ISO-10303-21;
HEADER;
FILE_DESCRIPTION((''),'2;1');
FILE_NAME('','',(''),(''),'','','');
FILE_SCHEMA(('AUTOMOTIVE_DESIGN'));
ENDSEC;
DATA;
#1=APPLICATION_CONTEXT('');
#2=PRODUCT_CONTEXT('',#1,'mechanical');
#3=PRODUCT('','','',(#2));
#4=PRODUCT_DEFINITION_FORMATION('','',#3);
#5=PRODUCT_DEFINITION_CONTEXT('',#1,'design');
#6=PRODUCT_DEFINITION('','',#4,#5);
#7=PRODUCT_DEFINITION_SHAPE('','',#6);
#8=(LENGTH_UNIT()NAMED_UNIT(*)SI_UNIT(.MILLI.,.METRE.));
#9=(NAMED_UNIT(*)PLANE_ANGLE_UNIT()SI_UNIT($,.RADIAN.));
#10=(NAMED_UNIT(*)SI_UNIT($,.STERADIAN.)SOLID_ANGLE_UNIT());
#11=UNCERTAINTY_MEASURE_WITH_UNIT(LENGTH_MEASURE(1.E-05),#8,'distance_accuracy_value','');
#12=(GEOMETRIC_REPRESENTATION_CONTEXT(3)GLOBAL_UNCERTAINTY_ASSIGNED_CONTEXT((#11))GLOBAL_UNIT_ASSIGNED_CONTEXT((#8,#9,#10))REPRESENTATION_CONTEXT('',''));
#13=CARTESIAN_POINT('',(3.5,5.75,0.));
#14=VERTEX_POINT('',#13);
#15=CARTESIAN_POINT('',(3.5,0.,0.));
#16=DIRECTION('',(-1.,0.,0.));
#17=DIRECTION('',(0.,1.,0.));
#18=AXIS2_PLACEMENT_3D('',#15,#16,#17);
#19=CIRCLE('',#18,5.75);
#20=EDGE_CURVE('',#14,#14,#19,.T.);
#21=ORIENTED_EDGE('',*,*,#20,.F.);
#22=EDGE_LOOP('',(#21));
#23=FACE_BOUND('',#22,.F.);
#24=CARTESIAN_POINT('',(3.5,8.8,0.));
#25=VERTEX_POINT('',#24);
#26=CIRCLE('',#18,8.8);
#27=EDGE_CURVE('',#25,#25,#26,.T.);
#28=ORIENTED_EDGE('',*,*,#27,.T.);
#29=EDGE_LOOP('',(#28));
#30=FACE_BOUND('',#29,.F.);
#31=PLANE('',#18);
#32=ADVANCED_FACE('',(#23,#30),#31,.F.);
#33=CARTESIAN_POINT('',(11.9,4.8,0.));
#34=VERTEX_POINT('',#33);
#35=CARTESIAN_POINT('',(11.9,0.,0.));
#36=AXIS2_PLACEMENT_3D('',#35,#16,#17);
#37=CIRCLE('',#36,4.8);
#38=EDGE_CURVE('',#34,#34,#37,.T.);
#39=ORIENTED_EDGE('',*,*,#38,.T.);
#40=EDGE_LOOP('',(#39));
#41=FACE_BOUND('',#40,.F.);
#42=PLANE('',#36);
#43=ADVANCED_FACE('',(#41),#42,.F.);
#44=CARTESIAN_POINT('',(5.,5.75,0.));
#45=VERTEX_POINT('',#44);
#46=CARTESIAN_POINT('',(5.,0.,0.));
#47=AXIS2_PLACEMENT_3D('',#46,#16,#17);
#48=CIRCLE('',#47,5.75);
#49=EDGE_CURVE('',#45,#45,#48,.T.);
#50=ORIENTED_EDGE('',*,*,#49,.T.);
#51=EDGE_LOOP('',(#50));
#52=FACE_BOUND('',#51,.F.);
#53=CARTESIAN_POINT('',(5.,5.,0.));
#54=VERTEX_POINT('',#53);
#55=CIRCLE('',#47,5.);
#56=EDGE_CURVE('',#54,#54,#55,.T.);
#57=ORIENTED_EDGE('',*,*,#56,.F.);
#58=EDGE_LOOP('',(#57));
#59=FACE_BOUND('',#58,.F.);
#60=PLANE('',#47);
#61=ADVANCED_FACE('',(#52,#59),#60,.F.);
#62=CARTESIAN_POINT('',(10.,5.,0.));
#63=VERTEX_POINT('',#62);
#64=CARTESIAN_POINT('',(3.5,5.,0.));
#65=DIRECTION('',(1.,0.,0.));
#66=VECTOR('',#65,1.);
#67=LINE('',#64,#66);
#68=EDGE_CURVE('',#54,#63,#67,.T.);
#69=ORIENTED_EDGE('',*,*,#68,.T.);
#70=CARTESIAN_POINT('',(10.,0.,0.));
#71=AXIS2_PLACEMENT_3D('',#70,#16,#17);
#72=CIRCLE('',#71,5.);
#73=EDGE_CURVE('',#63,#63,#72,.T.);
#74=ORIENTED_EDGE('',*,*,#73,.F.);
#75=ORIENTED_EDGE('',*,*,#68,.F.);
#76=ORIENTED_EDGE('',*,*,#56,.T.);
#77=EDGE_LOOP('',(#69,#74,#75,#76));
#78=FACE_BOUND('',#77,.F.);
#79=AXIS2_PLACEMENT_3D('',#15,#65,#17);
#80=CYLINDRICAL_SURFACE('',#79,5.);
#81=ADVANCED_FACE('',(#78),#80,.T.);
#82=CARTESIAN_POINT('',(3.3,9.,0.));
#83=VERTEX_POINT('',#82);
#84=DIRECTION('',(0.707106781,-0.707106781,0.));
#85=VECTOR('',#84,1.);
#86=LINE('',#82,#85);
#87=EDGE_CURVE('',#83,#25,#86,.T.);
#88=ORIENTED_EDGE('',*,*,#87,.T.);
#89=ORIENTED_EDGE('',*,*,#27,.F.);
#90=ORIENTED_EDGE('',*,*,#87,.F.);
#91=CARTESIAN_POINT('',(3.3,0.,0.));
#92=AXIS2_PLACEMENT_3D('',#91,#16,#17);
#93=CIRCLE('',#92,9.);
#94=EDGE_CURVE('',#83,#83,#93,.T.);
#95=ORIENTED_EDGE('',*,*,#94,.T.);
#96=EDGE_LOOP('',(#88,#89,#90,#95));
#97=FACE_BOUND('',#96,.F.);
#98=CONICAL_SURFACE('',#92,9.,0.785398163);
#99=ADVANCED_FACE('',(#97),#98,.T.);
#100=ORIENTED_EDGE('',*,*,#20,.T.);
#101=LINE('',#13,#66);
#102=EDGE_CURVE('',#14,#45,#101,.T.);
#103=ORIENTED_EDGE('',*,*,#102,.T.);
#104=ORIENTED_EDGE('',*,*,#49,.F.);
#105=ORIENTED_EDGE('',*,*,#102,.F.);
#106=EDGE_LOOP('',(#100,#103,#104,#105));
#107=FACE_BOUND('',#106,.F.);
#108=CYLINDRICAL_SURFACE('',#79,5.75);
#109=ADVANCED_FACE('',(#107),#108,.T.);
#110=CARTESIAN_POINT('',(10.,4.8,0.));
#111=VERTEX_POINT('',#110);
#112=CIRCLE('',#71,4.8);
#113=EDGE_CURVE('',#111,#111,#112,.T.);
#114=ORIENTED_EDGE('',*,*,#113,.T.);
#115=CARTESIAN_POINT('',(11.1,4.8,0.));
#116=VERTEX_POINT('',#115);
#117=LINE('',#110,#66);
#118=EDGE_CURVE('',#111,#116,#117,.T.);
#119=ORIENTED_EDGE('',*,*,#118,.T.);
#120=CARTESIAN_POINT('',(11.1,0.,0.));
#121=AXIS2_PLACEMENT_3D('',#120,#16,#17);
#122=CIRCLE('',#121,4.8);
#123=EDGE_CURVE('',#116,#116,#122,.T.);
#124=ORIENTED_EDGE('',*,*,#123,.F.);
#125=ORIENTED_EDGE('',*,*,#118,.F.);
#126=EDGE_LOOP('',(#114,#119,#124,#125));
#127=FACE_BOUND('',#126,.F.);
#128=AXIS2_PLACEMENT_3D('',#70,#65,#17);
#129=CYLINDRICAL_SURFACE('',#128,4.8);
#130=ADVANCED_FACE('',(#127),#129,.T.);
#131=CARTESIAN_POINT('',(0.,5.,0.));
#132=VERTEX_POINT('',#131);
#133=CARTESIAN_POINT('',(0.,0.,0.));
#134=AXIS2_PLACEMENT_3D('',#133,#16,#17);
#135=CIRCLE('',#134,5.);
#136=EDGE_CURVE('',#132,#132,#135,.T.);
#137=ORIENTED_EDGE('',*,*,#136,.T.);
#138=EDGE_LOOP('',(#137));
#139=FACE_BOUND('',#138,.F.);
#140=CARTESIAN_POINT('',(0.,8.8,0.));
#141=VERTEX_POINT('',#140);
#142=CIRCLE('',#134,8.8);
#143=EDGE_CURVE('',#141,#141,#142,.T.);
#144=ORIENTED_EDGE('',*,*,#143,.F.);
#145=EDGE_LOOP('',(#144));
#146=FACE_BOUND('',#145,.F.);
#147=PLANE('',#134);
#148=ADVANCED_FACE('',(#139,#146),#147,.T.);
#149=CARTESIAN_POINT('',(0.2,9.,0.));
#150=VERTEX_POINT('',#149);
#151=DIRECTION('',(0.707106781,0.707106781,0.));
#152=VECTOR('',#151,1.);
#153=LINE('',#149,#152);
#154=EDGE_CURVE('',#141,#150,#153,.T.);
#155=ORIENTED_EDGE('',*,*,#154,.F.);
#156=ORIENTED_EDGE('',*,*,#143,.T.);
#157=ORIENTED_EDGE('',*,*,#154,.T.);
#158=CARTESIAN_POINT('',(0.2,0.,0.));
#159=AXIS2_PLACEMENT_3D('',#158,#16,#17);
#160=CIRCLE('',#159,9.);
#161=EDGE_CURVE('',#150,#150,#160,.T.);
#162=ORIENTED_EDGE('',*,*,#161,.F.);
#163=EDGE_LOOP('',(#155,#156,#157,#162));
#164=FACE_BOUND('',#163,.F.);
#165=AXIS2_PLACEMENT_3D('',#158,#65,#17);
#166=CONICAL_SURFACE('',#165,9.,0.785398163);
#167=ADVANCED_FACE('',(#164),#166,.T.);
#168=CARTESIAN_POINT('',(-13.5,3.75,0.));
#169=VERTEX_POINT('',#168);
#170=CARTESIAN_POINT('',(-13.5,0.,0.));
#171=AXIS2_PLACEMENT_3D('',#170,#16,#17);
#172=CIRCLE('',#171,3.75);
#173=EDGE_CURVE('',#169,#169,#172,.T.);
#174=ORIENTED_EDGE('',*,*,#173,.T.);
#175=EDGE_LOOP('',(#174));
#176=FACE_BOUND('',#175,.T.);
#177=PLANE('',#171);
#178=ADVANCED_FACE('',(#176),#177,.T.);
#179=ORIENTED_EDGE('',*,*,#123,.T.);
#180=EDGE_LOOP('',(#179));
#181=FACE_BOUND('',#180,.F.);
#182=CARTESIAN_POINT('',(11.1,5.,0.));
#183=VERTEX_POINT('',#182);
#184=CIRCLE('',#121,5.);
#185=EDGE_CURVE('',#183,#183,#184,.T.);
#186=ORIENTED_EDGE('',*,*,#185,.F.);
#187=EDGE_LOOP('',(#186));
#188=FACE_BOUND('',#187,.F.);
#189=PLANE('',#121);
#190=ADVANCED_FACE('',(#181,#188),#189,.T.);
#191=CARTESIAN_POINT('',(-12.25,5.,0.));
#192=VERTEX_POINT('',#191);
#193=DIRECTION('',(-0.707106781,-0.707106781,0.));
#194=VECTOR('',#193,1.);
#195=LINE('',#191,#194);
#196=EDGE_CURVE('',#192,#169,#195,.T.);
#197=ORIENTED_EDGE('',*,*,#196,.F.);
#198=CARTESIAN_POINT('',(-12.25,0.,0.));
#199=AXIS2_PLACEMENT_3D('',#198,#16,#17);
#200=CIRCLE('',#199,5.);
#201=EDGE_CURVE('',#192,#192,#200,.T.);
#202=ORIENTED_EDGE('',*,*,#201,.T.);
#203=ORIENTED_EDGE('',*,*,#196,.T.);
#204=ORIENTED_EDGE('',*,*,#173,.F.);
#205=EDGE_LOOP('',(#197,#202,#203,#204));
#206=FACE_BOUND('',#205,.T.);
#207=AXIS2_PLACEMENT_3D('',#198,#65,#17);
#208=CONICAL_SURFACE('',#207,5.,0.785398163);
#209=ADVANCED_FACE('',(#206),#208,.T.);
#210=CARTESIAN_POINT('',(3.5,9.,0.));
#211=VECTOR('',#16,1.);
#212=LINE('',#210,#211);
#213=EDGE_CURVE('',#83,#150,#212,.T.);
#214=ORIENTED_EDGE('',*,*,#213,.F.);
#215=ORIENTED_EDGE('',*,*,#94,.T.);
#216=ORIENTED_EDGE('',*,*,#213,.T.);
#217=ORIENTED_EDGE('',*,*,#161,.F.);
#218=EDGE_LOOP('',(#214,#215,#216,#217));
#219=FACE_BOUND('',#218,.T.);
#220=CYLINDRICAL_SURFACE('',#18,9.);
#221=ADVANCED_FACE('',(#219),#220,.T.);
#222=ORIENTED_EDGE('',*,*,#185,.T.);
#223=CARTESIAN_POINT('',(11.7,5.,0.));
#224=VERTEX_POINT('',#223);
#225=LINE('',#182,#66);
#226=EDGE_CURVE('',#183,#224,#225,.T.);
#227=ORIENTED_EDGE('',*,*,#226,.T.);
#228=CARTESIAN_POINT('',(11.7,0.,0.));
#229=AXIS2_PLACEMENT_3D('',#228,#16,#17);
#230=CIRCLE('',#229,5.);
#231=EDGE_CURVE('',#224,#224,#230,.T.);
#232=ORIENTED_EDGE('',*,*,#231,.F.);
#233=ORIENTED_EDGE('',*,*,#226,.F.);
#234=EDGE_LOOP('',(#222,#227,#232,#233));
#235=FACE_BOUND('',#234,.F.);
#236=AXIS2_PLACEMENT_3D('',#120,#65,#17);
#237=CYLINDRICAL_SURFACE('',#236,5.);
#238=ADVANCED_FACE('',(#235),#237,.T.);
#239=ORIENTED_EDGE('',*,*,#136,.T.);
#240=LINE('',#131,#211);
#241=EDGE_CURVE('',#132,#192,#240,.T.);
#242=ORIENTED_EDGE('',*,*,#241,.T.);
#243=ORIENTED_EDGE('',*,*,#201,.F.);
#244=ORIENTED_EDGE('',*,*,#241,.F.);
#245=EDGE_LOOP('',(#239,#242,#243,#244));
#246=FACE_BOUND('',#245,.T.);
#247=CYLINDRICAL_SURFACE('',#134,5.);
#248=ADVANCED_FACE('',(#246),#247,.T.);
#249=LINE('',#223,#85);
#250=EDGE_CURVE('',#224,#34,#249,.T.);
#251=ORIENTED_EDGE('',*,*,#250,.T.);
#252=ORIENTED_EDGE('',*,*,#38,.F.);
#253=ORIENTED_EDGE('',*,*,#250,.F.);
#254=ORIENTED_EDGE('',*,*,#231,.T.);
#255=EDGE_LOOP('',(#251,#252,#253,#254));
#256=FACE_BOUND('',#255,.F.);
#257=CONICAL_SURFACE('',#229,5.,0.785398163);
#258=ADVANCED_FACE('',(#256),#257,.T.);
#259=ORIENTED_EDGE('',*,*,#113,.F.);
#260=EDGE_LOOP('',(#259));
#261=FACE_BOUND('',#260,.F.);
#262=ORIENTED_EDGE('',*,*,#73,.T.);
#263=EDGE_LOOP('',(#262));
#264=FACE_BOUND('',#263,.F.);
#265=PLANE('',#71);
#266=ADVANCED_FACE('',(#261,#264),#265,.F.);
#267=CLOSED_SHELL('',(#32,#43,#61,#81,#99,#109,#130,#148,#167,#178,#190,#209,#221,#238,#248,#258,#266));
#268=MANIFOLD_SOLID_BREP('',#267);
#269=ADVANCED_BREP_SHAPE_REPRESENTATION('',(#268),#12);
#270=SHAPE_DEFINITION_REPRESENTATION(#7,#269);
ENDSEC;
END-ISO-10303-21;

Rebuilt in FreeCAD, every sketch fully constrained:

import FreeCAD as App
import Part
import Sketcher
from FreeCAD import Vector


def edges_at(feature, points):
    """Names of the edges that pass closest to the given points."""
    edges = feature.Shape.Edges
    near = lambda p: min(range(len(edges)), key=lambda i: edges[i].distToShape(Part.Vertex(*p))[0])
    return sorted({f"Edge{near(p) + 1}" for p in points})


def add_polygon(sketch, points):
    """Adds a closed chain of lines whose ends are joined by coincident constraints."""
    first, n = sketch.GeometryCount, len(points)
    for a, b in zip(points, points[1:] + points[:1]):
        sketch.addGeometry(Part.LineSegment(App.Vector(*a, 0), App.Vector(*b, 0)), False)
    for i in range(n):
        sketch.addConstraint(Sketcher.Constraint("Coincident", first + i, 2, first + (i + 1) % n, 1))

doc = App.newDocument("Part")
params = doc.addObject("Spreadsheet::Sheet", "Params")
for row, (alias, value) in enumerate([
    ("sketch1_width", "5 mm"),
    ("sketch1_width2", "0.6 mm"),
    ("sketch1_width3", "1.1 mm"),
    ("sketch1_width4", "1.5 mm"),
    ("sketch1_width5", "3.5 mm"),
    ("revolution_angle", "360 deg"),
    ("chamfer_size", "0.2 mm"),
    ("chamfer2_size", "1.25 mm"),
], start=1):
    params.set(f"A{row}", alias)
    params.set(f"B{row}", "=" + value)
    params.setAlias(f"B{row}", alias)

body = doc.addObject("PartDesign::Body", "Body")

# Sketch on XY plane
sketch1 = body.newObject("Sketcher::SketchObject", "Sketch")
sketch1.AttachmentSupport = (doc.getObject("XY_Plane"), [""])
sketch1.MapMode = "FlatFace"
add_polygon(sketch1, [(-13.5, 0), (11.9, 0), (11.9, 4.8), (11.7, 5), (11.1, 5), (11.1, 4.8), (10, 4.8), (10, 5), (5, 5), (5, 5.75), (3.5, 5.75), (3.5, 9), (0, 9), (0, 5), (-13.5, 5)])  # lines 0-14
sketch1.addConstraint([
    Sketcher.Constraint("Horizontal", 0),
    Sketcher.Constraint("Vertical", 1),
    Sketcher.Constraint("Horizontal", 3),
    Sketcher.Constraint("Vertical", 4),
    Sketcher.Constraint("Horizontal", 5),
    Sketcher.Constraint("Vertical", 6),
    Sketcher.Constraint("Horizontal", 7),
    Sketcher.Constraint("Vertical", 8),
    Sketcher.Constraint("Horizontal", 9),
    Sketcher.Constraint("Vertical", 10),
    Sketcher.Constraint("Horizontal", 11),
    Sketcher.Constraint("Vertical", 12),
    Sketcher.Constraint("Horizontal", 13),
    Sketcher.Constraint("Vertical", 14),
    Sketcher.Constraint("PointOnObject", 0, 2, -1),
    Sketcher.Constraint("PointOnObject", 11, 2, -2),
    Sketcher.Constraint("Horizontal", 1, 2, 4, 2),
    Sketcher.Constraint("Horizontal", 3, 2, 6, 2),
    Sketcher.Constraint("Horizontal", 7, 2, 12, 2),
    Sketcher.Constraint("Equal", 7, 14),
    Sketcher.Constraint("DistanceX", 7, 2, 7, 1, 5.0),
    Sketcher.Constraint("DistanceX", 3, 2, 3, 1, 0.6),
    Sketcher.Constraint("DistanceX", 5, 2, 5, 1, 1.1),
    Sketcher.Constraint("DistanceX", 9, 2, 9, 1, 1.5),
    Sketcher.Constraint("DistanceX", 11, 2, 11, 1, 3.5),
    Sketcher.Constraint("DistanceX", 13, 2, 13, 1, 13.5),
    Sketcher.Constraint("DistanceY", 4, 2, 4, 1, 0.2),
    Sketcher.Constraint("DistanceX", 2, 2, 1, 2, 0.2),
    Sketcher.Constraint("DistanceY", 12, 2, 12, 1, 4.0),
    Sketcher.Constraint("DistanceY", 8, 1, 8, 2, 0.75),
])
sketch1.setExpression("Constraints[35]", "Params.sketch1_width")
sketch1.setExpression("Constraints[36]", "Params.sketch1_width2")
sketch1.setExpression("Constraints[37]", "Params.sketch1_width3")
sketch1.setExpression("Constraints[38]", "Params.sketch1_width4")
sketch1.setExpression("Constraints[39]", "Params.sketch1_width5")
revolution = body.newObject("PartDesign::Revolution", "Revolution")
revolution.Profile = sketch1
revolution.ReferenceAxis = (sketch1, ["H_Axis"])
revolution.setExpression("Angle", "Params.revolution_angle")
doc.recompute()

chamfer = body.newObject("PartDesign::Chamfer", "Chamfer")
chamfer.Base = (revolution, edges_at(revolution, [(3.5, -9, 0), (0, -9, 0)]))
chamfer.setExpression("Size", "Params.chamfer_size")
doc.recompute()

chamfer2 = body.newObject("PartDesign::Chamfer", "Chamfer001")
chamfer2.Base = (chamfer, edges_at(chamfer, [(-13.5, -5, 0)]))
chamfer2.setExpression("Size", "Params.chamfer2_size")

doc.recompute()
